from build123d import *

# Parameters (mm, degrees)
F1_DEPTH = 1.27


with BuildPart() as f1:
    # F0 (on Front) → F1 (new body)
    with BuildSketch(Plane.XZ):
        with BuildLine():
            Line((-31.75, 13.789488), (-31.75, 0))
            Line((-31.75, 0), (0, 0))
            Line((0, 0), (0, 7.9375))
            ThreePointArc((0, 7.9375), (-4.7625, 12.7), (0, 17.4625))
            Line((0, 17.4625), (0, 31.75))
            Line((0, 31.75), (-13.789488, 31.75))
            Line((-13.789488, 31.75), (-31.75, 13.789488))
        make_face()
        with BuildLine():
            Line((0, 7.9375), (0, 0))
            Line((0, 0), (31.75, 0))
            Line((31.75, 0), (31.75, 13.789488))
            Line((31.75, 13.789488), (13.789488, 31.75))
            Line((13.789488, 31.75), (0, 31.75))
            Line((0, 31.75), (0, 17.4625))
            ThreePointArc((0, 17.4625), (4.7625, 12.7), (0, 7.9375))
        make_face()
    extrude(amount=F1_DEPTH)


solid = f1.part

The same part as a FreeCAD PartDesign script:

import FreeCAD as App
import Part
import Sketcher
from FreeCAD import Vector
Q = App.Units.Quantity


def add_polygon(sketch, points):
    """Adds a closed chain of lines whose ends are joined by coincident constraints."""
    first, n = sketch.GeometryCount, len(points)
    for a, b in zip(points, points[1:] + points[:1]):
        sketch.addGeometry(Part.LineSegment(App.Vector(*a, 0), App.Vector(*b, 0)), False)
    for i in range(n):
        sketch.addConstraint(Sketcher.Constraint("Coincident", first + i, 2, first + (i + 1) % n, 1))

doc = App.newDocument("Part")
body = doc.addObject("PartDesign::Body", "Body")

# Sketch on XZ plane
sketch1 = body.newObject("Sketcher::SketchObject", "Sketch")
sketch1.AttachmentSupport = (doc.getObject("XZ_Plane"), [""])
sketch1.MapMode = "FlatFace"
add_polygon(sketch1, [(-31.8, 13.8), (-31.8, 0), (31.8, 0), (31.8, 13.8), (13.8, 31.8), (-13.8, 31.8)])  # lines 0-5
sketch1.addGeometry(Part.Circle(Vector(0, 12.7, 0), Vector(0, 0, 1), 4.8), False)  # 6
sketch1.addConstraint(Sketcher.Constraint("Vertical", 0))
sketch1.addConstraint(Sketcher.Constraint("Horizontal", 1))
sketch1.addConstraint(Sketcher.Constraint("Vertical", 2))
sketch1.addConstraint(Sketcher.Constraint("Horizontal", 4))
sketch1.addConstraint(Sketcher.Constraint("Symmetric", 0, 2, 1, 2, -1, 1))
sketch1.addConstraint(Sketcher.Constraint("PointOnObject", 6, 3, -2))
sketch1.addConstraint(Sketcher.Constraint("Perpendicular", 3, 5))
sketch1.addConstraint(Sketcher.Constraint("Horizontal", 2, 2, 5, 2))
sketch1.addConstraint(Sketcher.Constraint("Equal", 3, 5))
sketch1.addConstraint(Sketcher.Constraint("Distance", 3, Q("1 in")))
sketch1.addConstraint(Sketcher.Constraint("Diameter", 6, Q("0.375 in")))
sketch1.addConstraint(Sketcher.Constraint("DistanceX", 1, 1, 1, 2, Q("2.5 in")))
sketch1.addConstraint(Sketcher.Constraint("DistanceY", -1, 1, 6, 3, Q("0.5 in")))
sketch1.addConstraint(Sketcher.Constraint("DistanceY", -1, 1, 3, 2, Q("1.25 in")))
pad1 = body.newObject("PartDesign::Pad", "Pad")
pad1.Profile = sketch1
pad1.Length = Q("0.05 in")

doc.recompute()
